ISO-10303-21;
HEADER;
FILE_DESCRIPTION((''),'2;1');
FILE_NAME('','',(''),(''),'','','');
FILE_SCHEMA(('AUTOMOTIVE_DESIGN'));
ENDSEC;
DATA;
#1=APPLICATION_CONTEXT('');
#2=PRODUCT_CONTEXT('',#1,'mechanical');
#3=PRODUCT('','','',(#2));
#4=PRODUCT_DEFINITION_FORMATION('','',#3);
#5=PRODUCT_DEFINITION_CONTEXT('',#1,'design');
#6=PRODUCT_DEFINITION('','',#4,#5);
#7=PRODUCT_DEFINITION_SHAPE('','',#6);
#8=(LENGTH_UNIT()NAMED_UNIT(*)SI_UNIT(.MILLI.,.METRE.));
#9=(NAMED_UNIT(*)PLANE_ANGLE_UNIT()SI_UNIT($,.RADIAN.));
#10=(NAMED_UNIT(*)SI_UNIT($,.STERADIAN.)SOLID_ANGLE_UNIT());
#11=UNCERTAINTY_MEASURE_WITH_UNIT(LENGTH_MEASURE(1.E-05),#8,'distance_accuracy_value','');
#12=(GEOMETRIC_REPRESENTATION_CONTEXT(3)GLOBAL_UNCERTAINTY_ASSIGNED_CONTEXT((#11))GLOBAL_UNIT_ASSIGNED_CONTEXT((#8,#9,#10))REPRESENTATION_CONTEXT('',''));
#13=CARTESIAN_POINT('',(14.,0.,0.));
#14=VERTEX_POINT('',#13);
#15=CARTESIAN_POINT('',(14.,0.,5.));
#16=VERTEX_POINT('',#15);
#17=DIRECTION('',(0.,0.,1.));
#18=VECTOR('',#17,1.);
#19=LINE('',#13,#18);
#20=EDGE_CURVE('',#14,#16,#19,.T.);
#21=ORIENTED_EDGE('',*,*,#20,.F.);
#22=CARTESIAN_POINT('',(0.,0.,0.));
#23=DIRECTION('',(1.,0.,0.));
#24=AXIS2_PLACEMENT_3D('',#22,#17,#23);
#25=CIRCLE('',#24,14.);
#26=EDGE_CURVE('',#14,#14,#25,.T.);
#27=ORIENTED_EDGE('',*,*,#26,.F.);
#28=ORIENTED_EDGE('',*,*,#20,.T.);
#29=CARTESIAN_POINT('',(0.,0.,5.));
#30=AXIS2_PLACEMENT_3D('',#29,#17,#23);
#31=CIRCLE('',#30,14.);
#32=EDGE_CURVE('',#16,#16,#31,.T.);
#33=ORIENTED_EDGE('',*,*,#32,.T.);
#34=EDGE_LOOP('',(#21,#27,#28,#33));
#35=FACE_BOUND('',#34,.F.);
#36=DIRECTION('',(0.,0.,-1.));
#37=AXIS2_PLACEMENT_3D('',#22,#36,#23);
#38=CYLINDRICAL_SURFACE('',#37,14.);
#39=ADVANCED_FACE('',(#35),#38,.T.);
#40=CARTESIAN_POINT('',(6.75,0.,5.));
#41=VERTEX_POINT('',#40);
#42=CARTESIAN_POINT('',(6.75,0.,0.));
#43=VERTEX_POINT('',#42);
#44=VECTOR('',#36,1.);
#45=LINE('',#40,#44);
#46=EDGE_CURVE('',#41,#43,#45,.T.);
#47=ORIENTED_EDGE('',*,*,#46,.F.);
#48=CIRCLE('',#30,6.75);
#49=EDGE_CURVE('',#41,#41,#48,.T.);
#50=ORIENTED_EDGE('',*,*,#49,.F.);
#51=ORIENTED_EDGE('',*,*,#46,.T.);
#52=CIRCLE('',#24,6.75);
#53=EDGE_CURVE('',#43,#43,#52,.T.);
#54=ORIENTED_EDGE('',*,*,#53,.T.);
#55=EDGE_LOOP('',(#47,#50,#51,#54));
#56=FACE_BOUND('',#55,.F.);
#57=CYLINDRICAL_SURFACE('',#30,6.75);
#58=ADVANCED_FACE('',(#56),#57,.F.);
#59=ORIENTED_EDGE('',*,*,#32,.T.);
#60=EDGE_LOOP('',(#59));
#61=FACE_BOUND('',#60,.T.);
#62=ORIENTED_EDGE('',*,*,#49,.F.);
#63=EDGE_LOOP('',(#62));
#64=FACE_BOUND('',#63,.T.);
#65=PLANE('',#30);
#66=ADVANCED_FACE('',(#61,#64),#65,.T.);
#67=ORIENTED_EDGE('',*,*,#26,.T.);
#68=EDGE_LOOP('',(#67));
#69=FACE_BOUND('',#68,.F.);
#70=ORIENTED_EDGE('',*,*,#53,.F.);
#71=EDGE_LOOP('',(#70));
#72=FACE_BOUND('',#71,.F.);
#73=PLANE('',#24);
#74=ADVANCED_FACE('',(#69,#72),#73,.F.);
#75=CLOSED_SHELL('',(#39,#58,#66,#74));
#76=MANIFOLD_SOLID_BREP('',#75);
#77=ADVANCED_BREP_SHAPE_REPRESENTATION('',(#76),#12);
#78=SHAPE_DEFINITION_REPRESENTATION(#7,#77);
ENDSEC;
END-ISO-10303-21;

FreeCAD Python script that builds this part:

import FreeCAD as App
import Part
import Sketcher
from FreeCAD import Vector
Q = App.Units.Quantity

doc = App.newDocument("Part")
body = doc.addObject("PartDesign::Body", "Body")

# Sketch on XY plane
sketch1 = body.newObject("Sketcher::SketchObject", "Sketch")
sketch1.AttachmentSupport = (doc.getObject("XY_Plane"), [""])
sketch1.MapMode = "FlatFace"
sketch1.addGeometry(Part.Circle(Vector(0, 0, 0), Vector(0, 0, 1), 14), False)
sketch1.addConstraint(Sketcher.Constraint("Coincident", 0, 3, -1, 1))
sketch1.addConstraint(Sketcher.Constraint("Diameter", 0, Q("28 mm")))
pad1 = body.newObject("PartDesign::Pad", "Pad")
pad1.Profile = sketch1
pad1.Length = 5

# Sketch on XY plane
sketch2 = body.newObject("Sketcher::SketchObject", "Sketch001")
sketch2.AttachmentSupport = (doc.getObject("XY_Plane"), [""])
sketch2.MapMode = "FlatFace"
sketch2.AttachmentOffset = App.Placement(Vector(0, 0, 5), App.Rotation())
sketch2.addGeometry(Part.Circle(Vector(0, 0, 0), Vector(0, 0, 1), 7), False)
sketch2.addConstraint(Sketcher.Constraint("Coincident", 0, 3, -1, 1))
sketch2.addConstraint(Sketcher.Constraint("Diameter", 0, Q("13.5 mm")))
pocket1 = body.newObject("PartDesign::Pocket", "Pocket")
pocket1.Profile = sketch2
pocket1.Length = 5

doc.recompute()
